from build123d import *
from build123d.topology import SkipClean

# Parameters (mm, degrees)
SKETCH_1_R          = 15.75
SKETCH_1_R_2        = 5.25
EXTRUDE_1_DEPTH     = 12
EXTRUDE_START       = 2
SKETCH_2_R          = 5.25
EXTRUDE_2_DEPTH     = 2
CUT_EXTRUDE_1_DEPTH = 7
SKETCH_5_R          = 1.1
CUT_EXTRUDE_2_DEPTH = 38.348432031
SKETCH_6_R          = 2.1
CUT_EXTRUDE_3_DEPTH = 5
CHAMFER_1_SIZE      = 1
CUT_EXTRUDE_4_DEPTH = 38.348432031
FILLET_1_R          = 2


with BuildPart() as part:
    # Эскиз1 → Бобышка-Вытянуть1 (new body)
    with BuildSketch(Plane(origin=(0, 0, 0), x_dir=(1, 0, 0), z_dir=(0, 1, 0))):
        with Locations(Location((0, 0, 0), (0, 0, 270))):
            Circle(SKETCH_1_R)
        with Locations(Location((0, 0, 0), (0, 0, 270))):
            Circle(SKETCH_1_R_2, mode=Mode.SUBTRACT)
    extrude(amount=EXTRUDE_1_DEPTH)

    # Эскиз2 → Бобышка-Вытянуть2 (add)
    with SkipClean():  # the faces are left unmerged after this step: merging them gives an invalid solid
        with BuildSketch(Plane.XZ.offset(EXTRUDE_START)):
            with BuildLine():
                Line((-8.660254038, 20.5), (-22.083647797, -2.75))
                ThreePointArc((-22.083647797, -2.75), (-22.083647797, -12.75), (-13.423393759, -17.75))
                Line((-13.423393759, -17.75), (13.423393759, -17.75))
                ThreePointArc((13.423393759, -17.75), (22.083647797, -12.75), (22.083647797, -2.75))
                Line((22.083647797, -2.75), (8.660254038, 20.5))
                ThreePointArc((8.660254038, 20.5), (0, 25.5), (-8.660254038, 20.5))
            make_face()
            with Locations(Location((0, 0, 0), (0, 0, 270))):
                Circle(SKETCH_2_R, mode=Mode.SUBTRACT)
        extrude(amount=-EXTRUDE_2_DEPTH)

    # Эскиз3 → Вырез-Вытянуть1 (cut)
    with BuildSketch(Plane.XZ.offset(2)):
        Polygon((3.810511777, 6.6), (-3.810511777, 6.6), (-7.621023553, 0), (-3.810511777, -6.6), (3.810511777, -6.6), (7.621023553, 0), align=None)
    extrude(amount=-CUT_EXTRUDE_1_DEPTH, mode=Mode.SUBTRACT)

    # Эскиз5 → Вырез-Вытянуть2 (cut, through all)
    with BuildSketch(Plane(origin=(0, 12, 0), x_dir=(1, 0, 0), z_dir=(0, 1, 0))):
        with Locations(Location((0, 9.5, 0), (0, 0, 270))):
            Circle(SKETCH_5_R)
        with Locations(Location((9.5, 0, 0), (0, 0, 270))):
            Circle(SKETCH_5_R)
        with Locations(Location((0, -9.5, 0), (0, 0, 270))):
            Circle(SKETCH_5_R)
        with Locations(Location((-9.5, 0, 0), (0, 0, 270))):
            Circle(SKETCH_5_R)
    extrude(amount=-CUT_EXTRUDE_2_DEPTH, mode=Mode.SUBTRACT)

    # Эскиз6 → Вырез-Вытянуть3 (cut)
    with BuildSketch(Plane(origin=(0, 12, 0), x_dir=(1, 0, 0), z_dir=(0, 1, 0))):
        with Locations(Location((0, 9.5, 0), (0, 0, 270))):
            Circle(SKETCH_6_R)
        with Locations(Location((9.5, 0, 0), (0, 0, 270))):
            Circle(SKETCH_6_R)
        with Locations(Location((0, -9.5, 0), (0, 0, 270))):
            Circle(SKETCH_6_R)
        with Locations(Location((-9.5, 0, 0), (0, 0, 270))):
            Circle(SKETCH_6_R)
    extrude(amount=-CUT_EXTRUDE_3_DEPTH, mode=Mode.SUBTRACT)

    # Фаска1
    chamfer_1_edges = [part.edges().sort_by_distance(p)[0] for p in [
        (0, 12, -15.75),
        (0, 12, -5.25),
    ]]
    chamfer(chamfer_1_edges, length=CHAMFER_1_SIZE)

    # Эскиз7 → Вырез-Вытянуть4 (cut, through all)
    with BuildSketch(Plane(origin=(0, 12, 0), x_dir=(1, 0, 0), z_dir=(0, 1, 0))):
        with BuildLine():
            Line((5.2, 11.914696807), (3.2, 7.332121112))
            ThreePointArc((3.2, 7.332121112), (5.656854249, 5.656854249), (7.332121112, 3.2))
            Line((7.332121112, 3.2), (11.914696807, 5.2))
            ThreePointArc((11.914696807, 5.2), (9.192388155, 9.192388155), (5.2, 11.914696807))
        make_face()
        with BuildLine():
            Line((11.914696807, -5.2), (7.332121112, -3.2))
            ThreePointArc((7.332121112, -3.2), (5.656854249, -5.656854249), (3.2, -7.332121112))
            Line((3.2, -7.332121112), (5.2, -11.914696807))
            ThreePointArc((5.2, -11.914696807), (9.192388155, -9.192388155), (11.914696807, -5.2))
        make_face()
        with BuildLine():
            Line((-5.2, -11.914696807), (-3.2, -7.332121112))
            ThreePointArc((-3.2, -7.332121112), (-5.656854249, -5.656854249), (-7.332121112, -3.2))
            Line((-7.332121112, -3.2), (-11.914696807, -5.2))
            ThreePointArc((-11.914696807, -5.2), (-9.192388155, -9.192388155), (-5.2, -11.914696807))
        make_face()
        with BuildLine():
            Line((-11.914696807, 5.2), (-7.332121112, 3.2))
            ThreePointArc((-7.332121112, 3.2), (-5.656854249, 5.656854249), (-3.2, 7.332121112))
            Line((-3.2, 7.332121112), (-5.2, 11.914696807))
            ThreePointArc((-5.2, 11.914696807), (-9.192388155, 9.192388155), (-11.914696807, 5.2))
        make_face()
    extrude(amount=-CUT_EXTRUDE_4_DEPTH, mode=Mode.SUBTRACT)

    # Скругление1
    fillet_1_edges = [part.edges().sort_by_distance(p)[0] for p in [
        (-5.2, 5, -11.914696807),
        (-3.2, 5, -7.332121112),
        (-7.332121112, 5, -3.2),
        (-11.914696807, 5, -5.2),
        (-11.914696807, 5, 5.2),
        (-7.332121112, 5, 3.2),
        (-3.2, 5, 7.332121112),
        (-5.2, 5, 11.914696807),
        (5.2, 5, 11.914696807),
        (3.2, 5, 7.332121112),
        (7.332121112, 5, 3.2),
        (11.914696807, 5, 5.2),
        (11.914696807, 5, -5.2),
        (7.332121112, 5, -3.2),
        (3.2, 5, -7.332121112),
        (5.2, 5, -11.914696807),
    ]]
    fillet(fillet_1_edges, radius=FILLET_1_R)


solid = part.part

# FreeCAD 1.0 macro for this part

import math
import FreeCAD as App
import Part
import Sketcher
from FreeCAD import Vector
Q = App.Units.Quantity


def edges_at(feature, points):
    """Names of the edges that pass closest to the given points."""
    edges = feature.Shape.Edges
    near = lambda p: min(range(len(edges)), key=lambda i: edges[i].distToShape(Part.Vertex(*p))[0])
    return sorted({f"Edge{near(p) + 1}" for p in points})


def add_polygon(sketch, points):
    """Adds a closed chain of lines whose ends are joined by coincident constraints."""
    first, n = sketch.GeometryCount, len(points)
    for a, b in zip(points, points[1:] + points[:1]):
        sketch.addGeometry(Part.LineSegment(App.Vector(*a, 0), App.Vector(*b, 0)), False)
    for i in range(n):
        sketch.addConstraint(Sketcher.Constraint("Coincident", first + i, 2, first + (i + 1) % n, 1))

doc = App.newDocument("Part")
params = doc.addObject("Spreadsheet::Sheet", "Params")
for row, (alias, value) in enumerate([
    ("sketch1_diameter", "31.5 mm"),
    ("sketch1_diameter2", "10.5 mm"),
    ("pad1_length", "12 mm"),
    ("sketch2_radius", "10 mm"),
    ("sketch2_diameter", "10.5 mm"),
    ("pad2_length", "2 mm"),
    ("pocket1_length", "7 mm"),
    ("sketch4_diameter", "2.2 mm"),
    ("sketch5_diameter", "4.2 mm"),
    ("pocket3_length", "5 mm"),
    ("chamfer_size", "1 mm"),
    ("sketch6_radius", "8 mm"),
    ("sketch6_radius2", "13 mm"),
    ("fillet_radius", "2 mm"),
], start=1):
    params.set(f"A{row}", alias)
    params.set(f"B{row}", "=" + value)
    params.setAlias(f"B{row}", alias)

body = doc.addObject("PartDesign::Body", "Body")

sketch1 = body.newObject("Sketcher::SketchObject", "Sketch")
sketch1.AttachmentSupport = (doc.getObject("XZ_Plane"), [""])
sketch1.MapMode = "FlatFace"
sketch1.addGeometry(Part.Circle(Vector(0, 0, 0), Vector(0, 0, 1), 15.75), False)
sketch1.addGeometry(Part.Circle(Vector(0, 0, 0), Vector(0, 0, 1), 5.25), False)
sketch1.addConstraint(Sketcher.Constraint("Coincident", 0, 3, -1, 1))
sketch1.addConstraint(Sketcher.Constraint("Coincident", 1, 3, -1, 1))
sketch1.addConstraint(Sketcher.Constraint("Diameter", 0, 31.5))
sketch1.addConstraint(Sketcher.Constraint("Diameter", 1, 10.5))
sketch1.setExpression("Constraints[2]", "Params.sketch1_diameter")
sketch1.setExpression("Constraints[3]", "Params.sketch1_diameter2")
pad1 = body.newObject("PartDesign::Pad", "Pad")
pad1.Profile = sketch1
pad1.setExpression("Length", "Params.pad1_length")
pad1.Reversed = True

sketch2 = body.newObject("Sketcher::SketchObject", "Sketch001")
sketch2.AttachmentSupport = (doc.getObject("XZ_Plane"), [""])
sketch2.MapMode = "FlatFace"
sketch2.AttachmentOffset = App.Placement(Vector(0, 0, 2), App.Rotation())
sketch2.addGeometry(Part.LineSegment(Vector(-8.660254, 20.5, 0), Vector(-22.083648, -2.75, 0)), False)
sketch2.addGeometry(Part.ArcOfCircle(Part.Circle(Vector(-13.423394, -7.75, 0), Vector(0, 0, 1), 10), math.radians(150), math.radians(270)), False)
sketch2.addGeometry(Part.LineSegment(Vector(-13.423394, -17.75, 0), Vector(13.423394, -17.75, 0)), False)
sketch2.addGeometry(Part.ArcOfCircle(Part.Circle(Vector(13.423394, -7.75, 0), Vector(0, 0, 1), 10), math.radians(-90), math.radians(30)), False)
sketch2.addGeometry(Part.LineSegment(Vector(22.083648, -2.75, 0), Vector(8.660254, 20.5, 0)), False)
sketch2.addGeometry(Part.ArcOfCircle(Part.Circle(Vector(0, 15.5, 0), Vector(0, 0, 1), 10), math.radians(30), math.radians(150)), False)
sketch2.addGeometry(Part.Circle(Vector(0, 0, 0), Vector(0, 0, 1), 5.25), False)
sketch2.addConstraint(Sketcher.Constraint("Tangent", 0, 2, 1, 1))
sketch2.addConstraint(Sketcher.Constraint("Tangent", 1, 2, 2, 1))
sketch2.addConstraint(Sketcher.Constraint("Tangent", 2, 2, 3, 1))
sketch2.addConstraint(Sketcher.Constraint("Tangent", 3, 2, 4, 1))
sketch2.addConstraint(Sketcher.Constraint("Tangent", 4, 2, 5, 1))
sketch2.addConstraint(Sketcher.Constraint("Tangent", 5, 2, 0, 1))
sketch2.addConstraint(Sketcher.Constraint("Horizontal", 2))
sketch2.addConstraint(Sketcher.Constraint("Coincident", 6, 3, -1, 1))
sketch2.addConstraint(Sketcher.Constraint("Equal", 1, 3))
sketch2.addConstraint(Sketcher.Constraint("Equal", 3, 5))
sketch2.addConstraint(Sketcher.Constraint("Symmetric", 0, 2, 3, 2, -2))
sketch2.addConstraint(Sketcher.Constraint("Radius", 1, 10.0))
sketch2.addConstraint(Sketcher.Constraint("Diameter", 6, 10.5))
sketch2.addConstraint(Sketcher.Constraint("Angle", 0, Q("-120 deg")))
sketch2.addConstraint(Sketcher.Constraint("DistanceY", -1, 1, 5, 3, 15.5))
sketch2.addConstraint(Sketcher.Constraint("DistanceY", 1, 3, -1, 1, 7.75))
sketch2.setExpression("Constraints[11]", "Params.sketch2_radius")
sketch2.setExpression("Constraints[12]", "Params.sketch2_diameter")
pad2 = body.newObject("PartDesign::Pad", "Pad001")
pad2.Profile = sketch2
pad2.setExpression("Length", "Params.pad2_length")
pad2.Reversed = True

sketch3 = body.newObject("Sketcher::SketchObject", "Sketch002")
sketch3.AttachmentSupport = (doc.getObject("XZ_Plane"), [""])
sketch3.MapMode = "FlatFace"
sketch3.AttachmentOffset = App.Placement(Vector(0, 0, 2), App.Rotation())
add_polygon(sketch3, [(3.810512, 6.6), (-3.810512, 6.6), (-7.621024, 0), (-3.810512, -6.6), (3.810512, -6.6), (7.621024, 0)])
sketch3.addConstraint(Sketcher.Constraint("Horizontal", 0))
sketch3.addConstraint(Sketcher.Constraint("Horizontal", 3))
sketch3.addConstraint(Sketcher.Constraint("Symmetric", 0, 2, 3, 2, -1, 1))
sketch3.addConstraint(Sketcher.Constraint("Symmetric", 1, 2, 4, 2, -1, 1))
sketch3.addConstraint(Sketcher.Constraint("PointOnObject", 1, 2, -1))
sketch3.addConstraint(Sketcher.Constraint("Parallel", 2, 5))
sketch3.addConstraint(Sketcher.Constraint("Vertical", 0, 2, 2, 2))
sketch3.addConstraint(Sketcher.Constraint("Angle", 1, Q("-120 deg")))
sketch3.addConstraint(Sketcher.Constraint("DistanceY", -1, 1, 0, 2, 6.6))
sketch3.addConstraint(Sketcher.Constraint("DistanceX", 0, 2, 0, 1, 7.621024))
pocket1 = body.newObject("PartDesign::Pocket", "Pocket")
pocket1.Profile = sketch3
pocket1.setExpression("Length", "Params.pocket1_length")

sketch4 = body.newObject("Sketcher::SketchObject", "Sketch003")
sketch4.AttachmentSupport = (doc.getObject("XZ_Plane"), [""])
sketch4.MapMode = "FlatFace"
sketch4.AttachmentOffset = App.Placement(Vector(0, 0, -12), App.Rotation())
sketch4.addGeometry(Part.Circle(Vector(0, -9.5, 0), Vector(0, 0, 1), 1.1), False)
sketch4.addGeometry(Part.Circle(Vector(9.5, 0, 0), Vector(0, 0, 1), 1.1), False)
sketch4.addGeometry(Part.Circle(Vector(0, 9.5, 0), Vector(0, 0, 1), 1.1), False)
sketch4.addGeometry(Part.Circle(Vector(-9.5, 0, 0), Vector(0, 0, 1), 1.1), False)
sketch4.addConstraint(Sketcher.Constraint("Equal", 0, 1))
sketch4.addConstraint(Sketcher.Constraint("Equal", 1, 2))
sketch4.addConstraint(Sketcher.Constraint("Equal", 2, 3))
sketch4.addConstraint(Sketcher.Constraint("Symmetric", 0, 3, 2, 3, -1, 1))
sketch4.addConstraint(Sketcher.Constraint("Symmetric", 1, 3, 3, 3, -1, 1))
sketch4.addConstraint(Sketcher.Constraint("PointOnObject", 0, 3, -2))
sketch4.addConstraint(Sketcher.Constraint("PointOnObject", 1, 3, -1))
sketch4.addConstraint(Sketcher.Constraint("Diameter", 0, 2.2))
sketch4.addConstraint(Sketcher.Constraint("DistanceY", 0, 3, 2, 3, 19.0))
sketch4.addConstraint(Sketcher.Constraint("DistanceX", 3, 3, 1, 3, 19.0))
sketch4.setExpression("Constraints[7]", "Params.sketch4_diameter")
pocket2 = body.newObject("PartDesign::Pocket", "Pocket001")
pocket2.Profile = sketch4
pocket2.Type = "ThroughAll"
pocket2.Reversed = True

sketch5 = body.newObject("Sketcher::SketchObject", "Sketch004")
sketch5.AttachmentSupport = (doc.getObject("XZ_Plane"), [""])
sketch5.MapMode = "FlatFace"
sketch5.AttachmentOffset = App.Placement(Vector(0, 0, -12), App.Rotation())
sketch5.addGeometry(Part.Circle(Vector(0, -9.5, 0), Vector(0, 0, 1), 2.1), False)
sketch5.addGeometry(Part.Circle(Vector(9.5, 0, 0), Vector(0, 0, 1), 2.1), False)
sketch5.addGeometry(Part.Circle(Vector(0, 9.5, 0), Vector(0, 0, 1), 2.1), False)
sketch5.addGeometry(Part.Circle(Vector(-9.5, 0, 0), Vector(0, 0, 1), 2.1), False)
sketch5.addConstraint(Sketcher.Constraint("Equal", 0, 1))
sketch5.addConstraint(Sketcher.Constraint("Equal", 1, 2))
sketch5.addConstraint(Sketcher.Constraint("Equal", 2, 3))
sketch5.addConstraint(Sketcher.Constraint("Symmetric", 0, 3, 2, 3, -1, 1))
sketch5.addConstraint(Sketcher.Constraint("Symmetric", 1, 3, 3, 3, -1, 1))
sketch5.addConstraint(Sketcher.Constraint("PointOnObject", 0, 3, -2))
sketch5.addConstraint(Sketcher.Constraint("PointOnObject", 1, 3, -1))
sketch5.addConstraint(Sketcher.Constraint("Diameter", 0, 4.2))
sketch5.addConstraint(Sketcher.Constraint("DistanceY", 0, 3, 2, 3, 19.0))
sketch5.addConstraint(Sketcher.Constraint("DistanceX", 3, 3, 1, 3, 19.0))
sketch5.setExpression("Constraints[7]", "Params.sketch5_diameter")
pocket3 = body.newObject("PartDesign::Pocket", "Pocket002")
pocket3.Profile = sketch5
pocket3.setExpression("Length", "Params.pocket3_length")
pocket3.Reversed = True
doc.recompute()

chamfer = body.newObject("PartDesign::Chamfer", "Chamfer")
chamfer.Base = (pocket3, edges_at(pocket3, [(0, 12, -15.75), (0, 12, -5.25)]))
chamfer.setExpression("Size", "Params.chamfer_size")

sketch6 = body.newObject("Sketcher::SketchObject", "Sketch005")
sketch6.AttachmentSupport = (doc.getObject("XZ_Plane"), [""])
sketch6.MapMode = "FlatFace"
sketch6.AttachmentOffset = App.Placement(Vector(0, 0, -12), App.Rotation())
sketch6.addGeometry(Part.LineSegment(Vector(5.2, -11.914697, 0), Vector(3.2, -7.332121, 0)), False)
sketch6.addGeometry(Part.ArcOfCircle(Part.Circle(Vector(0, 0, 0), Vector(0, 0, 1), 8), math.radians(-66.421821), math.radians(-23.578179)), False)
sketch6.addGeometry(Part.LineSegment(Vector(7.332121, -3.2, 0), Vector(11.914697, -5.2, 0)), False)
sketch6.addGeometry(Part.ArcOfCircle(Part.Circle(Vector(0, 0, 0), Vector(0, 0, 1), 13), math.radians(-66.421822), math.radians(-23.578178)), False)
sketch6.addGeometry(Part.LineSegment(Vector(11.914697, 5.2, 0), Vector(7.332121, 3.2, 0)), False)
sketch6.addGeometry(Part.ArcOfCircle(Part.Circle(Vector(0, 0, 0), Vector(0, 0, 1), 8), math.radians(23.578179), math.radians(66.421821)), False)
sketch6.addGeometry(Part.LineSegment(Vector(3.2, 7.332121, 0), Vector(5.2, 11.914697, 0)), False)
sketch6.addGeometry(Part.ArcOfCircle(Part.Circle(Vector(0, 0, 0), Vector(0, 0, 1), 13), math.radians(23.578178), math.radians(66.421822)), False)
sketch6.addGeometry(Part.LineSegment(Vector(-5.2, 11.914697, 0), Vector(-3.2, 7.332121, 0)), False)
sketch6.addGeometry(Part.ArcOfCircle(Part.Circle(Vector(0, 0, 0), Vector(0, 0, 1), 8), math.radians(113.578179), math.radians(156.421821)), False)
sketch6.addGeometry(Part.LineSegment(Vector(-7.332121, 3.2, 0), Vector(-11.914697, 5.2, 0)), False)
sketch6.addGeometry(Part.ArcOfCircle(Part.Circle(Vector(0, 0, 0), Vector(0, 0, 1), 13), math.radians(113.578178), math.radians(156.421822)), False)
sketch6.addGeometry(Part.LineSegment(Vector(-11.914697, -5.2, 0), Vector(-7.332121, -3.2, 0)), False)
sketch6.addGeometry(Part.ArcOfCircle(Part.Circle(Vector(0, 0, 0), Vector(0, 0, 1), 8), math.radians(-156.421821), math.radians(-113.578179)), False)
sketch6.addGeometry(Part.LineSegment(Vector(-3.2, -7.332121, 0), Vector(-5.2, -11.914697, 0)), False)
sketch6.addGeometry(Part.ArcOfCircle(Part.Circle(Vector(0, 0, 0), Vector(0, 0, 1), 13), math.radians(-156.421822), math.radians(-113.578178)), False)
sketch6.addConstraint(Sketcher.Constraint("Coincident", 0, 2, 1, 1))
sketch6.addConstraint(Sketcher.Constraint("Coincident", 1, 2, 2, 1))
sketch6.addConstraint(Sketcher.Constraint("Coincident", 2, 2, 3, 2))
sketch6.addConstraint(Sketcher.Constraint("Coincident", 3, 1, 0, 1))
sketch6.addConstraint(Sketcher.Constraint("Coincident", 4, 2, 5, 1))
sketch6.addConstraint(Sketcher.Constraint("Coincident", 5, 2, 6, 1))
sketch6.addConstraint(Sketcher.Constraint("Coincident", 6, 2, 7, 2))
sketch6.addConstraint(Sketcher.Constraint("Coincident", 7, 1, 4, 1))
sketch6.addConstraint(Sketcher.Constraint("Coincident", 8, 2, 9, 1))
sketch6.addConstraint(Sketcher.Constraint("Coincident", 9, 2, 10, 1))
sketch6.addConstraint(Sketcher.Constraint("Coincident", 10, 2, 11, 2))
sketch6.addConstraint(Sketcher.Constraint("Coincident", 11, 1, 8, 1))
sketch6.addConstraint(Sketcher.Constraint("Coincident", 12, 2, 13, 1))
sketch6.addConstraint(Sketcher.Constraint("Coincident", 13, 2, 14, 1))
sketch6.addConstraint(Sketcher.Constraint("Coincident", 14, 2, 15, 2))
sketch6.addConstraint(Sketcher.Constraint("Coincident", 15, 1, 12, 1))
sketch6.addConstraint(Sketcher.Constraint("Coincident", 1, 3, -1, 1))
sketch6.addConstraint(Sketcher.Constraint("Coincident", 3, 3, -1, 1))
sketch6.addConstraint(Sketcher.Constraint("Coincident", 5, 3, -1, 1))
sketch6.addConstraint(Sketcher.Constraint("Coincident", 7, 3, -1, 1))
sketch6.addConstraint(Sketcher.Constraint("Coincident", 9, 3, -1, 1))
sketch6.addConstraint(Sketcher.Constraint("Coincident", 11, 3, -1, 1))
sketch6.addConstraint(Sketcher.Constraint("Coincident", 13, 3, -1, 1))
sketch6.addConstraint(Sketcher.Constraint("Coincident", 15, 3, -1, 1))
sketch6.addConstraint(Sketcher.Constraint("Equal", 1, 5))
sketch6.addConstraint(Sketcher.Constraint("Equal", 3, 7))
sketch6.addConstraint(Sketcher.Constraint("Equal", 5, 9))
sketch6.addConstraint(Sketcher.Constraint("Equal", 7, 11))
sketch6.addConstraint(Sketcher.Constraint("Equal", 9, 13))
sketch6.addConstraint(Sketcher.Constraint("Equal", 11, 15))
sketch6.addConstraint(Sketcher.Constraint("Perpendicular", 0, 4))
sketch6.addConstraint(Sketcher.Constraint("Perpendicular", 2, 6))
sketch6.addConstraint(Sketcher.Constraint("Perpendicular", 4, 8))
sketch6.addConstraint(Sketcher.Constraint("Perpendicular", 6, 10))
sketch6.addConstraint(Sketcher.Constraint("Perpendicular", 8, 12))
sketch6.addConstraint(Sketcher.Constraint("Perpendicular", 10, 14))
sketch6.addConstraint(Sketcher.Constraint("Horizontal", 5, 2, 8, 2))
sketch6.addConstraint(Sketcher.Constraint("Horizontal", 4, 2, 9, 2))
sketch6.addConstraint(Sketcher.Constraint("Horizontal", 7, 1, 10, 2))
sketch6.addConstraint(Sketcher.Constraint("Horizontal", 1, 2, 12, 2))
sketch6.addConstraint(Sketcher.Constraint("Horizontal", 0, 2, 13, 2))
sketch6.addConstraint(Sketcher.Constraint("Vertical", 1, 2, 4, 2))
sketch6.addConstraint(Sketcher.Constraint("Vertical", 0, 2, 5, 2))
sketch6.addConstraint(Sketcher.Constraint("Radius", 1, 8.0))
sketch6.addConstraint(Sketcher.Constraint("Radius", 3, 13.0))
sketch6.addConstraint(Sketcher.Constraint("DistanceY", 2, 2, 1, 2, 2.0))
sketch6.addConstraint(Sketcher.Constraint("DistanceX", -1, 1, 0, 2, 3.2))
sketch6.addConstraint(Sketcher.Constraint("DistanceY", 1, 2, -1, 1, 3.2))
sketch6.setExpression("Constraints[43]", "Params.sketch6_radius")
sketch6.setExpression("Constraints[44]", "Params.sketch6_radius2")
pocket4 = body.newObject("PartDesign::Pocket", "Pocket003")
pocket4.Profile = sketch6
pocket4.Type = "ThroughAll"
pocket4.Reversed = True
doc.recompute()

fillet = body.newObject("PartDesign::Fillet", "Fillet")
fillet.Base = (pocket4, edges_at(pocket4, [
    (-5.2, 5, -11.915),
    (-3.2, 5, -7.332),
    (-7.332, 5, -3.2),
    (-11.915, 5, -5.2),
    (-11.915, 5, 5.2),
    (-7.332, 5, 3.2),
    (-3.2, 5, 7.332),
    (-5.2, 5, 11.915),
    (5.2, 5, 11.915),
    (3.2, 5, 7.332),
    (7.332, 5, 3.2),
    (11.915, 5, 5.2),
    (11.915, 5, -5.2),
    (7.332, 5, -3.2),
    (3.2, 5, -7.332),
    (5.2, 5, -11.915),
]))
fillet.setExpression("Radius", "Params.fillet_radius")

doc.recompute()
